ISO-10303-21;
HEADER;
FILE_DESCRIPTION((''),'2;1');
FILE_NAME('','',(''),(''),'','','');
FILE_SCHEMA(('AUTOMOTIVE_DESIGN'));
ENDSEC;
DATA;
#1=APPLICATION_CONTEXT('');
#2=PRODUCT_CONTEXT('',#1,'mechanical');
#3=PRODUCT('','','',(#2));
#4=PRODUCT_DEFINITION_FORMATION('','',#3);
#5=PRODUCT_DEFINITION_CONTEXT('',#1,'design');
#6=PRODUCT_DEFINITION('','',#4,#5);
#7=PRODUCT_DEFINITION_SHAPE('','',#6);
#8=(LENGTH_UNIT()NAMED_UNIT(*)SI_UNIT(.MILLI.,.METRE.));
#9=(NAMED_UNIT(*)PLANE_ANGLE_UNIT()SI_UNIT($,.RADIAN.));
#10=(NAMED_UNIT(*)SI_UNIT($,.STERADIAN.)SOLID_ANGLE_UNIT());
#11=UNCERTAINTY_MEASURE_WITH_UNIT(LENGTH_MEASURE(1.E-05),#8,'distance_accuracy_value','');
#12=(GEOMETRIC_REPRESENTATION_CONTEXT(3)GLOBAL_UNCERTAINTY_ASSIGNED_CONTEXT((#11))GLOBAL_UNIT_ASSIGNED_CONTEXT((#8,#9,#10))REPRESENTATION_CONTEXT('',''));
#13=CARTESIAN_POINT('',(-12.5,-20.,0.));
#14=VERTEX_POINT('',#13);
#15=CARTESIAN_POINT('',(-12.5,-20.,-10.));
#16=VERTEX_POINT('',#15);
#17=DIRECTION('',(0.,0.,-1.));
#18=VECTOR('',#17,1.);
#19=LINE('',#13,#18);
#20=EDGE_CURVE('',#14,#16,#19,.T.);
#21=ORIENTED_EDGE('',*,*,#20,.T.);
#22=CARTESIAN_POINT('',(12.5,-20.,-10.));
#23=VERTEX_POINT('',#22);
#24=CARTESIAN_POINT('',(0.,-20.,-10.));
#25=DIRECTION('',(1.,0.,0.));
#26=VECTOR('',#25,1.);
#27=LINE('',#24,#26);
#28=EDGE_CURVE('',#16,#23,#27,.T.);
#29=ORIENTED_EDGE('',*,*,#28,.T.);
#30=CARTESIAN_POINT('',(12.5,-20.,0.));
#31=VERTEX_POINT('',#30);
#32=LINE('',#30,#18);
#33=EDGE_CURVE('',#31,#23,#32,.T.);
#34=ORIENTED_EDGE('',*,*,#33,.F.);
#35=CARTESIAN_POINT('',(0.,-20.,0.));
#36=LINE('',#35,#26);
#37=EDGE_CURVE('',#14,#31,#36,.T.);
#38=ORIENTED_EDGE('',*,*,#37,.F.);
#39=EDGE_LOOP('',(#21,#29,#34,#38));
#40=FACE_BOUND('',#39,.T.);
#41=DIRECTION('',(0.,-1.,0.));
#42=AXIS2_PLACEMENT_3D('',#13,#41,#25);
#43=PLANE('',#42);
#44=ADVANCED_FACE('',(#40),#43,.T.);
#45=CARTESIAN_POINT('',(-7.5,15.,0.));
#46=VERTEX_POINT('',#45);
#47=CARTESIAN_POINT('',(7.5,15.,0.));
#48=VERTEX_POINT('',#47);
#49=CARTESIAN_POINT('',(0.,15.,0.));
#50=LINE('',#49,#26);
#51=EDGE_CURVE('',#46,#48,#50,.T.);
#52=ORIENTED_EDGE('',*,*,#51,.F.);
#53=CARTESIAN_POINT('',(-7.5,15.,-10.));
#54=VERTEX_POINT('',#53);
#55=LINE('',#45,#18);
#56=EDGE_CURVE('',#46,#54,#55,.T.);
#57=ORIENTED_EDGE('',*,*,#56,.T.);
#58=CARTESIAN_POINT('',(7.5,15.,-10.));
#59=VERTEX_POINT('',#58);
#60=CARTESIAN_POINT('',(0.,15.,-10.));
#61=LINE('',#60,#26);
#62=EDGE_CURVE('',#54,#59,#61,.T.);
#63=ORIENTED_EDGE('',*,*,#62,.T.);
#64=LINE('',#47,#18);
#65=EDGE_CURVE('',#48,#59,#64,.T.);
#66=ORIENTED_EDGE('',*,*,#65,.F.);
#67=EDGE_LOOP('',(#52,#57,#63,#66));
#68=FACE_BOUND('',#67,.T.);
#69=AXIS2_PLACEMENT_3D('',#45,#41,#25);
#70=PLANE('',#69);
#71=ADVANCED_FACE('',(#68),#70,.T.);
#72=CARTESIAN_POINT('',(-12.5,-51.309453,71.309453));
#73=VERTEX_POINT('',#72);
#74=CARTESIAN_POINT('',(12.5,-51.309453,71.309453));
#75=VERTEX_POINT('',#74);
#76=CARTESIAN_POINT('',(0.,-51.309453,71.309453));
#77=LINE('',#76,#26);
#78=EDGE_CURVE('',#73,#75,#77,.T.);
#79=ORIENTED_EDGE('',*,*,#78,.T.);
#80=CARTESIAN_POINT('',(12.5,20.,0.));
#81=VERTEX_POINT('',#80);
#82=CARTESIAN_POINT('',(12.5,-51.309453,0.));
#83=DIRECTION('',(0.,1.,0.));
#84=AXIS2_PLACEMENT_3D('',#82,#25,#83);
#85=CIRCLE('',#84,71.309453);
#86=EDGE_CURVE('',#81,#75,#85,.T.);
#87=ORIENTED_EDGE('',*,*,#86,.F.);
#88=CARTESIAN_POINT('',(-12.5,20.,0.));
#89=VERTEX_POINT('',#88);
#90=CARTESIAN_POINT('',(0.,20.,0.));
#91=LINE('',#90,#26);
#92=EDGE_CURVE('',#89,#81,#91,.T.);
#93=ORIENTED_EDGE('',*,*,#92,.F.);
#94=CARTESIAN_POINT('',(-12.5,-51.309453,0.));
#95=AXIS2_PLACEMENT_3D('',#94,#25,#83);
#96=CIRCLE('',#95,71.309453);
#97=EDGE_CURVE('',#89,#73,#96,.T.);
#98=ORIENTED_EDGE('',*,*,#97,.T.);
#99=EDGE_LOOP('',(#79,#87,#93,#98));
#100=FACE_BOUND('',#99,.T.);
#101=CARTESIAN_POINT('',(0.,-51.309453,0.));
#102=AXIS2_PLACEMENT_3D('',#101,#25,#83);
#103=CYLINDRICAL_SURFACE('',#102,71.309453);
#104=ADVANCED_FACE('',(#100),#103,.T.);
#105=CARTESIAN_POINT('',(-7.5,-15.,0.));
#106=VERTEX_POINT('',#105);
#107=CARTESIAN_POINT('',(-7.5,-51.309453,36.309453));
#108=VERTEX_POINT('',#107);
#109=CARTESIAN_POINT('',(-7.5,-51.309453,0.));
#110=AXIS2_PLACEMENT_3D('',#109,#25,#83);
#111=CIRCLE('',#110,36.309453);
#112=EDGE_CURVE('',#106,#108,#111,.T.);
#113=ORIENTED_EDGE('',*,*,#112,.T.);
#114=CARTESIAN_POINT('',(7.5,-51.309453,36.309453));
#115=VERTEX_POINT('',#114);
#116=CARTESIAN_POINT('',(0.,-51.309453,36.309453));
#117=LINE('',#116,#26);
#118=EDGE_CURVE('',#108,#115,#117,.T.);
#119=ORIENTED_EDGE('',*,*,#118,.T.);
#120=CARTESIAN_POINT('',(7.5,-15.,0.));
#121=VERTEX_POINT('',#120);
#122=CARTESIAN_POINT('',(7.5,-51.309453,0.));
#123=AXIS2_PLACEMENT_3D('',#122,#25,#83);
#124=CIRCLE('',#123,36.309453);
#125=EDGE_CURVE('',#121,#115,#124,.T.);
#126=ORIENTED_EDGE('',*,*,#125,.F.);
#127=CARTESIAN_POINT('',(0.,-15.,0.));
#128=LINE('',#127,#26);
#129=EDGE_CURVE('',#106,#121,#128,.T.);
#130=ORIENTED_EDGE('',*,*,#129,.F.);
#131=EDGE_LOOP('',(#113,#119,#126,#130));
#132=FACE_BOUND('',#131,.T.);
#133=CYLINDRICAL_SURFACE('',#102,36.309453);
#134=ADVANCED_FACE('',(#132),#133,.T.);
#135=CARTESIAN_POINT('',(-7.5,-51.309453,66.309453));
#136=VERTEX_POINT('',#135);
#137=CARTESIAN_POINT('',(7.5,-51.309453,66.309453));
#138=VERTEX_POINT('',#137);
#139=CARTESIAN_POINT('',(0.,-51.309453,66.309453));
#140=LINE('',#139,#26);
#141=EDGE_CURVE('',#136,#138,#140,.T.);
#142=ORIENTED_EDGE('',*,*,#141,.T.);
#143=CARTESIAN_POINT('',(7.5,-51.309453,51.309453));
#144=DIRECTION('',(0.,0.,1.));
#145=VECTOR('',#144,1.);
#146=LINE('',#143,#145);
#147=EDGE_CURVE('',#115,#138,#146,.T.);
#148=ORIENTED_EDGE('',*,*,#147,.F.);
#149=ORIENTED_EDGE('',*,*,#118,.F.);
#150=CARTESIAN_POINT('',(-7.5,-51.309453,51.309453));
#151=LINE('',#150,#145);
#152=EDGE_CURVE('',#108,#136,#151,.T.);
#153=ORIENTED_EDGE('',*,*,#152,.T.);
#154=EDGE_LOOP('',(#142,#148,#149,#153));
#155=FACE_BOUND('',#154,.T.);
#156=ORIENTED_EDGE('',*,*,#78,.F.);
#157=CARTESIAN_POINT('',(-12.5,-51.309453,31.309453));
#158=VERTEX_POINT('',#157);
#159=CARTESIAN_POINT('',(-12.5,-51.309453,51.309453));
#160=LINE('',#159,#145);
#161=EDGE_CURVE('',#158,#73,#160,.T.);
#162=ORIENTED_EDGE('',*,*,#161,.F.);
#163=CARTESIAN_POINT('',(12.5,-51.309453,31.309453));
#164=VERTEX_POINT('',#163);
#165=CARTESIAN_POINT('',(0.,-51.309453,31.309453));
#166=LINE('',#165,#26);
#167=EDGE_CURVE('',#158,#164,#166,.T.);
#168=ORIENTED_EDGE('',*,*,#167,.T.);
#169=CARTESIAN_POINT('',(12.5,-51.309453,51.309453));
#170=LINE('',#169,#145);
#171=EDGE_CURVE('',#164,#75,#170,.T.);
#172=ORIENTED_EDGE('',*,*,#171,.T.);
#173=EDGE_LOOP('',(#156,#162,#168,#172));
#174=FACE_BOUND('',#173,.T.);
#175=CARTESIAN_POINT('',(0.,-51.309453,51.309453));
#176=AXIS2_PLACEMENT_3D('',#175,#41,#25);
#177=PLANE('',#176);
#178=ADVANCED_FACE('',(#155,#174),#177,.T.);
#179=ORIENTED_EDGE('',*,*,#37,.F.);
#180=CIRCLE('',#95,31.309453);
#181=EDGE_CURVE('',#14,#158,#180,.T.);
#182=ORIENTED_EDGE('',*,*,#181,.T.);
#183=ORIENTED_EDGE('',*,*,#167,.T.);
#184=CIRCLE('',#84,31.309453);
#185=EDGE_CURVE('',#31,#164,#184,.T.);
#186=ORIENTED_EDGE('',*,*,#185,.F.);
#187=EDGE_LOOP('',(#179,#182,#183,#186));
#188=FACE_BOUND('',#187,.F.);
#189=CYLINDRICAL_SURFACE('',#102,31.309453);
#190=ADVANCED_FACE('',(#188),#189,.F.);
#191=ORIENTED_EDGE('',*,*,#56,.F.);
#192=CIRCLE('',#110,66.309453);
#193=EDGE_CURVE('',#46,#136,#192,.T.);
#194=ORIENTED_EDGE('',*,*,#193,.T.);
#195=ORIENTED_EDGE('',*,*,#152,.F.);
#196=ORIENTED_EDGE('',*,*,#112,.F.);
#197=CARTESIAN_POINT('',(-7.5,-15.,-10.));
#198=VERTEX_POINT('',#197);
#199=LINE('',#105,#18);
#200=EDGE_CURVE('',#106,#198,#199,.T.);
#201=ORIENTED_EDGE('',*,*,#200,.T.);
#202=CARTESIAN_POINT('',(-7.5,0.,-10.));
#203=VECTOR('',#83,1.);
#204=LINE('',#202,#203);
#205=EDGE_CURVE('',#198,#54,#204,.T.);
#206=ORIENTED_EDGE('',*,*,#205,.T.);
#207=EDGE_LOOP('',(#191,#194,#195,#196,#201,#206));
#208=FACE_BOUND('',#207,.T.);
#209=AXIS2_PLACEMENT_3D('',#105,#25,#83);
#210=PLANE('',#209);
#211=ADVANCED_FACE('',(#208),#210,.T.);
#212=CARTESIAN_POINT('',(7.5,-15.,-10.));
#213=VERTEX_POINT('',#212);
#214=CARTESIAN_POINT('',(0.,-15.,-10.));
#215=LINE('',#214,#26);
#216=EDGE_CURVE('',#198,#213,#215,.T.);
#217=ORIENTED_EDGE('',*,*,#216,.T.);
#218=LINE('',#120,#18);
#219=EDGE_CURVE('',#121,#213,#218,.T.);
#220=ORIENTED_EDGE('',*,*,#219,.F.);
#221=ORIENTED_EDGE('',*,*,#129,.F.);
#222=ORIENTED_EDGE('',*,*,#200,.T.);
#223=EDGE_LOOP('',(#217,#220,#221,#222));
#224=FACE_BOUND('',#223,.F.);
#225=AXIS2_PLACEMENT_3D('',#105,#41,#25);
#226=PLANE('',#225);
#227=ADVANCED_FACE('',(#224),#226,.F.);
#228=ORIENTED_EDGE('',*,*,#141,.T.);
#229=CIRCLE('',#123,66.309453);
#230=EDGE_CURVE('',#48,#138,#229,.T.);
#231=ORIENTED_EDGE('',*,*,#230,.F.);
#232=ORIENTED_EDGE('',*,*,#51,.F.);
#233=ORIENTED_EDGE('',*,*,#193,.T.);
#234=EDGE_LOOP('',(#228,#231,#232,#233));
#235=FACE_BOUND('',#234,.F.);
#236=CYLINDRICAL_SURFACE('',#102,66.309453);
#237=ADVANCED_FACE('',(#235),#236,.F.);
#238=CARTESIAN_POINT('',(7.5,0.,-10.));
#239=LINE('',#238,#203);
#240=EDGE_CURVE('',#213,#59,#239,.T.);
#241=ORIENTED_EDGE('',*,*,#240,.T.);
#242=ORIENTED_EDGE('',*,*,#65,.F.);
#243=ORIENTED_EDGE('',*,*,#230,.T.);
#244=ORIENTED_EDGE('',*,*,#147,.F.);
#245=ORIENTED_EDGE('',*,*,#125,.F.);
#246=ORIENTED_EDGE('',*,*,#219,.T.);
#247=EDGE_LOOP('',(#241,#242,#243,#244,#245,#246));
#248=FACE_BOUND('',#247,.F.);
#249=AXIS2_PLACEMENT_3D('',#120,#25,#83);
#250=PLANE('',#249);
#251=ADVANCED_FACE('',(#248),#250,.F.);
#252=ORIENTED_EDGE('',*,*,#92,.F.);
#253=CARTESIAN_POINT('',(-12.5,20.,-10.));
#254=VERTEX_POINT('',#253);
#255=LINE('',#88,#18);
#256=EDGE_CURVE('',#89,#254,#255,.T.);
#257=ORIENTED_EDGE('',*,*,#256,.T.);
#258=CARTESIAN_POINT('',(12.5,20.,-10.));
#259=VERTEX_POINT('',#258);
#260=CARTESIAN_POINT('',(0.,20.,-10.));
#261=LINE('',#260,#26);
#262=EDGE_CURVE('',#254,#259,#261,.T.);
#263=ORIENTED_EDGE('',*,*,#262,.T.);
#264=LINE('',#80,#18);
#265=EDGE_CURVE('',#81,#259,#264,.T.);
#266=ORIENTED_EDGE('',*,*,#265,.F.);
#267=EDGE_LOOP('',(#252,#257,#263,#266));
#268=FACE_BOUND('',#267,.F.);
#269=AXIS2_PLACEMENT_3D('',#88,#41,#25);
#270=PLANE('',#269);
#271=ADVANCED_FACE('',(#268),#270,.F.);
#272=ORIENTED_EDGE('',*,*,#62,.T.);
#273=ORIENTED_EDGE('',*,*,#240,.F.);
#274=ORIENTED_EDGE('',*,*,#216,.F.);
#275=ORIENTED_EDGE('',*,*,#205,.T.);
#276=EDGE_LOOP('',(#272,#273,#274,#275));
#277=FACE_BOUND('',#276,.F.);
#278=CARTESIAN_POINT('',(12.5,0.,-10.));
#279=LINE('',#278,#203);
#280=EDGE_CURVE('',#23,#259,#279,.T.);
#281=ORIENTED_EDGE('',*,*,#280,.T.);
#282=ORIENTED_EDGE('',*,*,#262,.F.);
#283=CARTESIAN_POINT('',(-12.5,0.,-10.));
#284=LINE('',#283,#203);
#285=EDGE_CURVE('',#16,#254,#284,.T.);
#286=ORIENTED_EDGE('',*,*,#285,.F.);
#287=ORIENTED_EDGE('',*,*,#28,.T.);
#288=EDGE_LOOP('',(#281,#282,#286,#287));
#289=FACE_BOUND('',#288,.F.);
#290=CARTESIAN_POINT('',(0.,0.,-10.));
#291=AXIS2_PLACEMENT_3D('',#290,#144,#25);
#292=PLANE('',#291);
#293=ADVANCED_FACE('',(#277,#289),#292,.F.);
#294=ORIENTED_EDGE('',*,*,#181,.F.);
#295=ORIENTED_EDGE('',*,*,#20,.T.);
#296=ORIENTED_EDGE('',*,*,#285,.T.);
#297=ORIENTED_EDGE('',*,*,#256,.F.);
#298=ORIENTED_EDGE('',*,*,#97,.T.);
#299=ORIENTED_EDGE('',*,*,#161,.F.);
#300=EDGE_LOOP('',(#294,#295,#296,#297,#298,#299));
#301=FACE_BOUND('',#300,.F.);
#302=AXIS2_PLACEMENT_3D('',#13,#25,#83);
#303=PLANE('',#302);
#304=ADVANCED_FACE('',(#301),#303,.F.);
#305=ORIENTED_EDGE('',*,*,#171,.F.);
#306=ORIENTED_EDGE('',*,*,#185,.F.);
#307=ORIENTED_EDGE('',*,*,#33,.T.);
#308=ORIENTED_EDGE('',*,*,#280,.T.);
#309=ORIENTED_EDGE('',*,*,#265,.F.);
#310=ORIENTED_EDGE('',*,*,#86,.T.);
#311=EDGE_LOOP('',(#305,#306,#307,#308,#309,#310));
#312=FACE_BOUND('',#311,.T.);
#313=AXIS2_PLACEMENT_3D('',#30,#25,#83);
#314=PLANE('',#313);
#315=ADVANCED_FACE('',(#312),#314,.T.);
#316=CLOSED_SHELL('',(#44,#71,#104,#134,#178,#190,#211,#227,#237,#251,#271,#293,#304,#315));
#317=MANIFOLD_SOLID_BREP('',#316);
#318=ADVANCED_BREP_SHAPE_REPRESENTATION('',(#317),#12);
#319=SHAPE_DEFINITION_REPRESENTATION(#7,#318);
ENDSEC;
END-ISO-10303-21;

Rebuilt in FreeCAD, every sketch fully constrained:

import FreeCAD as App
import Part
import Sketcher
Q = App.Units.Quantity

doc = App.newDocument("Part")
params = doc.addObject("Spreadsheet::Sheet", "Params")
for row, (alias, value) in enumerate([
    ("sketch1_width", "25 mm"),
    ("sketch1_height", "40 mm"),
    ("revolution_angle", "90 deg"),
    ("sketch2_width", "15 mm"),
    ("sketch2_height", "30 mm"),
    ("groove_angle", "90 deg"),
    ("sketch3_width", "25 mm"),
    ("sketch3_height", "40 mm"),
    ("pad1_length", "10 mm"),
    ("sketch4_width", "15 mm"),
    ("sketch4_height", "30 mm"),
    ("pocket1_length", "10 mm"),
], start=1):
    params.set(f"A{row}", alias)
    params.set(f"B{row}", "=" + value)
    params.setAlias(f"B{row}", alias)

body = doc.addObject("PartDesign::Body", "Body")

sketch1 = body.newObject("Sketcher::SketchObject", "Sketch")
sketch1.AttachmentSupport = (doc.getObject("XY_Plane"), [""])
sketch1.MapMode = "FlatFace"
sketch1.addGeometry([
    Part.LineSegment(App.Vector(-12.5, 20, 0), App.Vector(-12.5, -20, 0)),
    Part.LineSegment(App.Vector(-12.5, -20, 0), App.Vector(12.5, -20, 0)),
    Part.LineSegment(App.Vector(12.5, -20, 0), App.Vector(12.5, 20, 0)),
    Part.LineSegment(App.Vector(12.5, 20, 0), App.Vector(-12.5, 20, 0)),
], False)
sketch1.addGeometry(Part.LineSegment(App.Vector(-12.5, -51.309453, 0), App.Vector(12.5, -51.309453, 0)), True)
sketch1.addConstraint([
    Sketcher.Constraint("Coincident", 0, 2, 1, 1),
    Sketcher.Constraint("Coincident", 1, 2, 2, 1),
    Sketcher.Constraint("Coincident", 2, 2, 3, 1),
    Sketcher.Constraint("Coincident", 3, 2, 0, 1),
    Sketcher.Constraint("Vertical", 0),
    Sketcher.Constraint("Horizontal", 1),
    Sketcher.Constraint("Vertical", 2),
    Sketcher.Constraint("Horizontal", 3),
    Sketcher.Constraint("Horizontal", 4),
    Sketcher.Constraint("Symmetric", 0, 2, 2, 2, -1, 1),
    Sketcher.Constraint("Vertical", 3, 2, 4, 1),
    Sketcher.Constraint("Vertical", 2, 2, 4, 2),
    Sketcher.Constraint("DistanceX", 1, 1, 1, 2, Q("25 mm")),
    Sketcher.Constraint("DistanceY", 0, 2, 0, 1, Q("40 mm")),
    Sketcher.Constraint("DistanceY", 4, 1, -1, 1, Q("51.309453 mm")),
])
sketch1.setExpression("Constraints[12]", "Params.sketch1_width")
sketch1.setExpression("Constraints[13]", "Params.sketch1_height")
revolution = body.newObject("PartDesign::Revolution", "Revolution")
revolution.Profile = sketch1
revolution.ReferenceAxis = (sketch1, ["Axis0"])
revolution.setExpression("Angle", "Params.revolution_angle")

sketch2 = body.newObject("Sketcher::SketchObject", "Sketch001")
sketch2.AttachmentSupport = (doc.getObject("XY_Plane"), [""])
sketch2.MapMode = "FlatFace"
sketch2.addGeometry([
    Part.LineSegment(App.Vector(-7.5, 15, 0), App.Vector(-7.5, -15, 0)),
    Part.LineSegment(App.Vector(-7.5, -15, 0), App.Vector(7.5, -15, 0)),
    Part.LineSegment(App.Vector(7.5, -15, 0), App.Vector(7.5, 15, 0)),
    Part.LineSegment(App.Vector(7.5, 15, 0), App.Vector(-7.5, 15, 0)),
], False)
sketch2.addGeometry(Part.LineSegment(App.Vector(-7.5, -51.309453, 0), App.Vector(7.5, -51.309453, 0)), True)
sketch2.addConstraint([
    Sketcher.Constraint("Coincident", 0, 2, 1, 1),
    Sketcher.Constraint("Coincident", 1, 2, 2, 1),
    Sketcher.Constraint("Coincident", 2, 2, 3, 1),
    Sketcher.Constraint("Coincident", 3, 2, 0, 1),
    Sketcher.Constraint("Vertical", 0),
    Sketcher.Constraint("Horizontal", 1),
    Sketcher.Constraint("Vertical", 2),
    Sketcher.Constraint("Horizontal", 3),
    Sketcher.Constraint("Horizontal", 4),
    Sketcher.Constraint("Symmetric", 0, 2, 2, 2, -1, 1),
    Sketcher.Constraint("Vertical", 3, 2, 4, 1),
    Sketcher.Constraint("Vertical", 2, 2, 4, 2),
    Sketcher.Constraint("DistanceX", 1, 1, 1, 2, Q("15 mm")),
    Sketcher.Constraint("DistanceY", 0, 2, 0, 1, Q("30 mm")),
    Sketcher.Constraint("DistanceY", 4, 1, -1, 1, Q("51.309453 mm")),
])
sketch2.setExpression("Constraints[12]", "Params.sketch2_width")
sketch2.setExpression("Constraints[13]", "Params.sketch2_height")
groove = body.newObject("PartDesign::Groove", "Groove")
groove.Profile = sketch2
groove.ReferenceAxis = (sketch2, ["Axis0"])
groove.setExpression("Angle", "Params.groove_angle")

sketch3 = body.newObject("Sketcher::SketchObject", "Sketch002")
sketch3.AttachmentSupport = (doc.getObject("XY_Plane"), [""])
sketch3.MapMode = "FlatFace"
sketch3.addGeometry([
    Part.LineSegment(App.Vector(-12.5, 20, 0), App.Vector(-12.5, -20, 0)),
    Part.LineSegment(App.Vector(-12.5, -20, 0), App.Vector(12.5, -20, 0)),
    Part.LineSegment(App.Vector(12.5, -20, 0), App.Vector(12.5, 20, 0)),
    Part.LineSegment(App.Vector(12.5, 20, 0), App.Vector(-12.5, 20, 0)),
], False)
sketch3.addConstraint([
    Sketcher.Constraint("Coincident", 0, 2, 1, 1),
    Sketcher.Constraint("Coincident", 1, 2, 2, 1),
    Sketcher.Constraint("Coincident", 2, 2, 3, 1),
    Sketcher.Constraint("Coincident", 3, 2, 0, 1),
    Sketcher.Constraint("Vertical", 0),
    Sketcher.Constraint("Horizontal", 1),
    Sketcher.Constraint("Vertical", 2),
    Sketcher.Constraint("Horizontal", 3),
    Sketcher.Constraint("Symmetric", 0, 2, 2, 2, -1, 1),
    Sketcher.Constraint("DistanceX", 1, 1, 1, 2, Q("25 mm")),
    Sketcher.Constraint("DistanceY", 0, 2, 0, 1, Q("40 mm")),
])
sketch3.setExpression("Constraints[9]", "Params.sketch3_width")
sketch3.setExpression("Constraints[10]", "Params.sketch3_height")
pad1 = body.newObject("PartDesign::Pad", "Pad")
pad1.Profile = sketch3
pad1.setExpression("Length", "Params.pad1_length")
pad1.Reversed = True

sketch4 = body.newObject("Sketcher::SketchObject", "Sketch003")
sketch4.AttachmentSupport = (doc.getObject("XY_Plane"), [""])
sketch4.MapMode = "FlatFace"
sketch4.addGeometry([
    Part.LineSegment(App.Vector(-7.5, 15, 0), App.Vector(-7.5, -15, 0)),
    Part.LineSegment(App.Vector(-7.5, -15, 0), App.Vector(7.5, -15, 0)),
    Part.LineSegment(App.Vector(7.5, -15, 0), App.Vector(7.5, 15, 0)),
    Part.LineSegment(App.Vector(7.5, 15, 0), App.Vector(-7.5, 15, 0)),
], False)
sketch4.addConstraint([
    Sketcher.Constraint("Coincident", 0, 2, 1, 1),
    Sketcher.Constraint("Coincident", 1, 2, 2, 1),
    Sketcher.Constraint("Coincident", 2, 2, 3, 1),
    Sketcher.Constraint("Coincident", 3, 2, 0, 1),
    Sketcher.Constraint("Vertical", 0),
    Sketcher.Constraint("Horizontal", 1),
    Sketcher.Constraint("Vertical", 2),
    Sketcher.Constraint("Horizontal", 3),
    Sketcher.Constraint("Symmetric", 0, 2, 2, 2, -1, 1),
    Sketcher.Constraint("DistanceX", 1, 1, 1, 2, Q("15 mm")),
    Sketcher.Constraint("DistanceY", 0, 2, 0, 1, Q("30 mm")),
])
sketch4.setExpression("Constraints[9]", "Params.sketch4_width")
sketch4.setExpression("Constraints[10]", "Params.sketch4_height")
pocket1 = body.newObject("PartDesign::Pocket", "Pocket")
pocket1.Profile = sketch4
pocket1.setExpression("Length", "Params.pocket1_length")

doc.recompute()
